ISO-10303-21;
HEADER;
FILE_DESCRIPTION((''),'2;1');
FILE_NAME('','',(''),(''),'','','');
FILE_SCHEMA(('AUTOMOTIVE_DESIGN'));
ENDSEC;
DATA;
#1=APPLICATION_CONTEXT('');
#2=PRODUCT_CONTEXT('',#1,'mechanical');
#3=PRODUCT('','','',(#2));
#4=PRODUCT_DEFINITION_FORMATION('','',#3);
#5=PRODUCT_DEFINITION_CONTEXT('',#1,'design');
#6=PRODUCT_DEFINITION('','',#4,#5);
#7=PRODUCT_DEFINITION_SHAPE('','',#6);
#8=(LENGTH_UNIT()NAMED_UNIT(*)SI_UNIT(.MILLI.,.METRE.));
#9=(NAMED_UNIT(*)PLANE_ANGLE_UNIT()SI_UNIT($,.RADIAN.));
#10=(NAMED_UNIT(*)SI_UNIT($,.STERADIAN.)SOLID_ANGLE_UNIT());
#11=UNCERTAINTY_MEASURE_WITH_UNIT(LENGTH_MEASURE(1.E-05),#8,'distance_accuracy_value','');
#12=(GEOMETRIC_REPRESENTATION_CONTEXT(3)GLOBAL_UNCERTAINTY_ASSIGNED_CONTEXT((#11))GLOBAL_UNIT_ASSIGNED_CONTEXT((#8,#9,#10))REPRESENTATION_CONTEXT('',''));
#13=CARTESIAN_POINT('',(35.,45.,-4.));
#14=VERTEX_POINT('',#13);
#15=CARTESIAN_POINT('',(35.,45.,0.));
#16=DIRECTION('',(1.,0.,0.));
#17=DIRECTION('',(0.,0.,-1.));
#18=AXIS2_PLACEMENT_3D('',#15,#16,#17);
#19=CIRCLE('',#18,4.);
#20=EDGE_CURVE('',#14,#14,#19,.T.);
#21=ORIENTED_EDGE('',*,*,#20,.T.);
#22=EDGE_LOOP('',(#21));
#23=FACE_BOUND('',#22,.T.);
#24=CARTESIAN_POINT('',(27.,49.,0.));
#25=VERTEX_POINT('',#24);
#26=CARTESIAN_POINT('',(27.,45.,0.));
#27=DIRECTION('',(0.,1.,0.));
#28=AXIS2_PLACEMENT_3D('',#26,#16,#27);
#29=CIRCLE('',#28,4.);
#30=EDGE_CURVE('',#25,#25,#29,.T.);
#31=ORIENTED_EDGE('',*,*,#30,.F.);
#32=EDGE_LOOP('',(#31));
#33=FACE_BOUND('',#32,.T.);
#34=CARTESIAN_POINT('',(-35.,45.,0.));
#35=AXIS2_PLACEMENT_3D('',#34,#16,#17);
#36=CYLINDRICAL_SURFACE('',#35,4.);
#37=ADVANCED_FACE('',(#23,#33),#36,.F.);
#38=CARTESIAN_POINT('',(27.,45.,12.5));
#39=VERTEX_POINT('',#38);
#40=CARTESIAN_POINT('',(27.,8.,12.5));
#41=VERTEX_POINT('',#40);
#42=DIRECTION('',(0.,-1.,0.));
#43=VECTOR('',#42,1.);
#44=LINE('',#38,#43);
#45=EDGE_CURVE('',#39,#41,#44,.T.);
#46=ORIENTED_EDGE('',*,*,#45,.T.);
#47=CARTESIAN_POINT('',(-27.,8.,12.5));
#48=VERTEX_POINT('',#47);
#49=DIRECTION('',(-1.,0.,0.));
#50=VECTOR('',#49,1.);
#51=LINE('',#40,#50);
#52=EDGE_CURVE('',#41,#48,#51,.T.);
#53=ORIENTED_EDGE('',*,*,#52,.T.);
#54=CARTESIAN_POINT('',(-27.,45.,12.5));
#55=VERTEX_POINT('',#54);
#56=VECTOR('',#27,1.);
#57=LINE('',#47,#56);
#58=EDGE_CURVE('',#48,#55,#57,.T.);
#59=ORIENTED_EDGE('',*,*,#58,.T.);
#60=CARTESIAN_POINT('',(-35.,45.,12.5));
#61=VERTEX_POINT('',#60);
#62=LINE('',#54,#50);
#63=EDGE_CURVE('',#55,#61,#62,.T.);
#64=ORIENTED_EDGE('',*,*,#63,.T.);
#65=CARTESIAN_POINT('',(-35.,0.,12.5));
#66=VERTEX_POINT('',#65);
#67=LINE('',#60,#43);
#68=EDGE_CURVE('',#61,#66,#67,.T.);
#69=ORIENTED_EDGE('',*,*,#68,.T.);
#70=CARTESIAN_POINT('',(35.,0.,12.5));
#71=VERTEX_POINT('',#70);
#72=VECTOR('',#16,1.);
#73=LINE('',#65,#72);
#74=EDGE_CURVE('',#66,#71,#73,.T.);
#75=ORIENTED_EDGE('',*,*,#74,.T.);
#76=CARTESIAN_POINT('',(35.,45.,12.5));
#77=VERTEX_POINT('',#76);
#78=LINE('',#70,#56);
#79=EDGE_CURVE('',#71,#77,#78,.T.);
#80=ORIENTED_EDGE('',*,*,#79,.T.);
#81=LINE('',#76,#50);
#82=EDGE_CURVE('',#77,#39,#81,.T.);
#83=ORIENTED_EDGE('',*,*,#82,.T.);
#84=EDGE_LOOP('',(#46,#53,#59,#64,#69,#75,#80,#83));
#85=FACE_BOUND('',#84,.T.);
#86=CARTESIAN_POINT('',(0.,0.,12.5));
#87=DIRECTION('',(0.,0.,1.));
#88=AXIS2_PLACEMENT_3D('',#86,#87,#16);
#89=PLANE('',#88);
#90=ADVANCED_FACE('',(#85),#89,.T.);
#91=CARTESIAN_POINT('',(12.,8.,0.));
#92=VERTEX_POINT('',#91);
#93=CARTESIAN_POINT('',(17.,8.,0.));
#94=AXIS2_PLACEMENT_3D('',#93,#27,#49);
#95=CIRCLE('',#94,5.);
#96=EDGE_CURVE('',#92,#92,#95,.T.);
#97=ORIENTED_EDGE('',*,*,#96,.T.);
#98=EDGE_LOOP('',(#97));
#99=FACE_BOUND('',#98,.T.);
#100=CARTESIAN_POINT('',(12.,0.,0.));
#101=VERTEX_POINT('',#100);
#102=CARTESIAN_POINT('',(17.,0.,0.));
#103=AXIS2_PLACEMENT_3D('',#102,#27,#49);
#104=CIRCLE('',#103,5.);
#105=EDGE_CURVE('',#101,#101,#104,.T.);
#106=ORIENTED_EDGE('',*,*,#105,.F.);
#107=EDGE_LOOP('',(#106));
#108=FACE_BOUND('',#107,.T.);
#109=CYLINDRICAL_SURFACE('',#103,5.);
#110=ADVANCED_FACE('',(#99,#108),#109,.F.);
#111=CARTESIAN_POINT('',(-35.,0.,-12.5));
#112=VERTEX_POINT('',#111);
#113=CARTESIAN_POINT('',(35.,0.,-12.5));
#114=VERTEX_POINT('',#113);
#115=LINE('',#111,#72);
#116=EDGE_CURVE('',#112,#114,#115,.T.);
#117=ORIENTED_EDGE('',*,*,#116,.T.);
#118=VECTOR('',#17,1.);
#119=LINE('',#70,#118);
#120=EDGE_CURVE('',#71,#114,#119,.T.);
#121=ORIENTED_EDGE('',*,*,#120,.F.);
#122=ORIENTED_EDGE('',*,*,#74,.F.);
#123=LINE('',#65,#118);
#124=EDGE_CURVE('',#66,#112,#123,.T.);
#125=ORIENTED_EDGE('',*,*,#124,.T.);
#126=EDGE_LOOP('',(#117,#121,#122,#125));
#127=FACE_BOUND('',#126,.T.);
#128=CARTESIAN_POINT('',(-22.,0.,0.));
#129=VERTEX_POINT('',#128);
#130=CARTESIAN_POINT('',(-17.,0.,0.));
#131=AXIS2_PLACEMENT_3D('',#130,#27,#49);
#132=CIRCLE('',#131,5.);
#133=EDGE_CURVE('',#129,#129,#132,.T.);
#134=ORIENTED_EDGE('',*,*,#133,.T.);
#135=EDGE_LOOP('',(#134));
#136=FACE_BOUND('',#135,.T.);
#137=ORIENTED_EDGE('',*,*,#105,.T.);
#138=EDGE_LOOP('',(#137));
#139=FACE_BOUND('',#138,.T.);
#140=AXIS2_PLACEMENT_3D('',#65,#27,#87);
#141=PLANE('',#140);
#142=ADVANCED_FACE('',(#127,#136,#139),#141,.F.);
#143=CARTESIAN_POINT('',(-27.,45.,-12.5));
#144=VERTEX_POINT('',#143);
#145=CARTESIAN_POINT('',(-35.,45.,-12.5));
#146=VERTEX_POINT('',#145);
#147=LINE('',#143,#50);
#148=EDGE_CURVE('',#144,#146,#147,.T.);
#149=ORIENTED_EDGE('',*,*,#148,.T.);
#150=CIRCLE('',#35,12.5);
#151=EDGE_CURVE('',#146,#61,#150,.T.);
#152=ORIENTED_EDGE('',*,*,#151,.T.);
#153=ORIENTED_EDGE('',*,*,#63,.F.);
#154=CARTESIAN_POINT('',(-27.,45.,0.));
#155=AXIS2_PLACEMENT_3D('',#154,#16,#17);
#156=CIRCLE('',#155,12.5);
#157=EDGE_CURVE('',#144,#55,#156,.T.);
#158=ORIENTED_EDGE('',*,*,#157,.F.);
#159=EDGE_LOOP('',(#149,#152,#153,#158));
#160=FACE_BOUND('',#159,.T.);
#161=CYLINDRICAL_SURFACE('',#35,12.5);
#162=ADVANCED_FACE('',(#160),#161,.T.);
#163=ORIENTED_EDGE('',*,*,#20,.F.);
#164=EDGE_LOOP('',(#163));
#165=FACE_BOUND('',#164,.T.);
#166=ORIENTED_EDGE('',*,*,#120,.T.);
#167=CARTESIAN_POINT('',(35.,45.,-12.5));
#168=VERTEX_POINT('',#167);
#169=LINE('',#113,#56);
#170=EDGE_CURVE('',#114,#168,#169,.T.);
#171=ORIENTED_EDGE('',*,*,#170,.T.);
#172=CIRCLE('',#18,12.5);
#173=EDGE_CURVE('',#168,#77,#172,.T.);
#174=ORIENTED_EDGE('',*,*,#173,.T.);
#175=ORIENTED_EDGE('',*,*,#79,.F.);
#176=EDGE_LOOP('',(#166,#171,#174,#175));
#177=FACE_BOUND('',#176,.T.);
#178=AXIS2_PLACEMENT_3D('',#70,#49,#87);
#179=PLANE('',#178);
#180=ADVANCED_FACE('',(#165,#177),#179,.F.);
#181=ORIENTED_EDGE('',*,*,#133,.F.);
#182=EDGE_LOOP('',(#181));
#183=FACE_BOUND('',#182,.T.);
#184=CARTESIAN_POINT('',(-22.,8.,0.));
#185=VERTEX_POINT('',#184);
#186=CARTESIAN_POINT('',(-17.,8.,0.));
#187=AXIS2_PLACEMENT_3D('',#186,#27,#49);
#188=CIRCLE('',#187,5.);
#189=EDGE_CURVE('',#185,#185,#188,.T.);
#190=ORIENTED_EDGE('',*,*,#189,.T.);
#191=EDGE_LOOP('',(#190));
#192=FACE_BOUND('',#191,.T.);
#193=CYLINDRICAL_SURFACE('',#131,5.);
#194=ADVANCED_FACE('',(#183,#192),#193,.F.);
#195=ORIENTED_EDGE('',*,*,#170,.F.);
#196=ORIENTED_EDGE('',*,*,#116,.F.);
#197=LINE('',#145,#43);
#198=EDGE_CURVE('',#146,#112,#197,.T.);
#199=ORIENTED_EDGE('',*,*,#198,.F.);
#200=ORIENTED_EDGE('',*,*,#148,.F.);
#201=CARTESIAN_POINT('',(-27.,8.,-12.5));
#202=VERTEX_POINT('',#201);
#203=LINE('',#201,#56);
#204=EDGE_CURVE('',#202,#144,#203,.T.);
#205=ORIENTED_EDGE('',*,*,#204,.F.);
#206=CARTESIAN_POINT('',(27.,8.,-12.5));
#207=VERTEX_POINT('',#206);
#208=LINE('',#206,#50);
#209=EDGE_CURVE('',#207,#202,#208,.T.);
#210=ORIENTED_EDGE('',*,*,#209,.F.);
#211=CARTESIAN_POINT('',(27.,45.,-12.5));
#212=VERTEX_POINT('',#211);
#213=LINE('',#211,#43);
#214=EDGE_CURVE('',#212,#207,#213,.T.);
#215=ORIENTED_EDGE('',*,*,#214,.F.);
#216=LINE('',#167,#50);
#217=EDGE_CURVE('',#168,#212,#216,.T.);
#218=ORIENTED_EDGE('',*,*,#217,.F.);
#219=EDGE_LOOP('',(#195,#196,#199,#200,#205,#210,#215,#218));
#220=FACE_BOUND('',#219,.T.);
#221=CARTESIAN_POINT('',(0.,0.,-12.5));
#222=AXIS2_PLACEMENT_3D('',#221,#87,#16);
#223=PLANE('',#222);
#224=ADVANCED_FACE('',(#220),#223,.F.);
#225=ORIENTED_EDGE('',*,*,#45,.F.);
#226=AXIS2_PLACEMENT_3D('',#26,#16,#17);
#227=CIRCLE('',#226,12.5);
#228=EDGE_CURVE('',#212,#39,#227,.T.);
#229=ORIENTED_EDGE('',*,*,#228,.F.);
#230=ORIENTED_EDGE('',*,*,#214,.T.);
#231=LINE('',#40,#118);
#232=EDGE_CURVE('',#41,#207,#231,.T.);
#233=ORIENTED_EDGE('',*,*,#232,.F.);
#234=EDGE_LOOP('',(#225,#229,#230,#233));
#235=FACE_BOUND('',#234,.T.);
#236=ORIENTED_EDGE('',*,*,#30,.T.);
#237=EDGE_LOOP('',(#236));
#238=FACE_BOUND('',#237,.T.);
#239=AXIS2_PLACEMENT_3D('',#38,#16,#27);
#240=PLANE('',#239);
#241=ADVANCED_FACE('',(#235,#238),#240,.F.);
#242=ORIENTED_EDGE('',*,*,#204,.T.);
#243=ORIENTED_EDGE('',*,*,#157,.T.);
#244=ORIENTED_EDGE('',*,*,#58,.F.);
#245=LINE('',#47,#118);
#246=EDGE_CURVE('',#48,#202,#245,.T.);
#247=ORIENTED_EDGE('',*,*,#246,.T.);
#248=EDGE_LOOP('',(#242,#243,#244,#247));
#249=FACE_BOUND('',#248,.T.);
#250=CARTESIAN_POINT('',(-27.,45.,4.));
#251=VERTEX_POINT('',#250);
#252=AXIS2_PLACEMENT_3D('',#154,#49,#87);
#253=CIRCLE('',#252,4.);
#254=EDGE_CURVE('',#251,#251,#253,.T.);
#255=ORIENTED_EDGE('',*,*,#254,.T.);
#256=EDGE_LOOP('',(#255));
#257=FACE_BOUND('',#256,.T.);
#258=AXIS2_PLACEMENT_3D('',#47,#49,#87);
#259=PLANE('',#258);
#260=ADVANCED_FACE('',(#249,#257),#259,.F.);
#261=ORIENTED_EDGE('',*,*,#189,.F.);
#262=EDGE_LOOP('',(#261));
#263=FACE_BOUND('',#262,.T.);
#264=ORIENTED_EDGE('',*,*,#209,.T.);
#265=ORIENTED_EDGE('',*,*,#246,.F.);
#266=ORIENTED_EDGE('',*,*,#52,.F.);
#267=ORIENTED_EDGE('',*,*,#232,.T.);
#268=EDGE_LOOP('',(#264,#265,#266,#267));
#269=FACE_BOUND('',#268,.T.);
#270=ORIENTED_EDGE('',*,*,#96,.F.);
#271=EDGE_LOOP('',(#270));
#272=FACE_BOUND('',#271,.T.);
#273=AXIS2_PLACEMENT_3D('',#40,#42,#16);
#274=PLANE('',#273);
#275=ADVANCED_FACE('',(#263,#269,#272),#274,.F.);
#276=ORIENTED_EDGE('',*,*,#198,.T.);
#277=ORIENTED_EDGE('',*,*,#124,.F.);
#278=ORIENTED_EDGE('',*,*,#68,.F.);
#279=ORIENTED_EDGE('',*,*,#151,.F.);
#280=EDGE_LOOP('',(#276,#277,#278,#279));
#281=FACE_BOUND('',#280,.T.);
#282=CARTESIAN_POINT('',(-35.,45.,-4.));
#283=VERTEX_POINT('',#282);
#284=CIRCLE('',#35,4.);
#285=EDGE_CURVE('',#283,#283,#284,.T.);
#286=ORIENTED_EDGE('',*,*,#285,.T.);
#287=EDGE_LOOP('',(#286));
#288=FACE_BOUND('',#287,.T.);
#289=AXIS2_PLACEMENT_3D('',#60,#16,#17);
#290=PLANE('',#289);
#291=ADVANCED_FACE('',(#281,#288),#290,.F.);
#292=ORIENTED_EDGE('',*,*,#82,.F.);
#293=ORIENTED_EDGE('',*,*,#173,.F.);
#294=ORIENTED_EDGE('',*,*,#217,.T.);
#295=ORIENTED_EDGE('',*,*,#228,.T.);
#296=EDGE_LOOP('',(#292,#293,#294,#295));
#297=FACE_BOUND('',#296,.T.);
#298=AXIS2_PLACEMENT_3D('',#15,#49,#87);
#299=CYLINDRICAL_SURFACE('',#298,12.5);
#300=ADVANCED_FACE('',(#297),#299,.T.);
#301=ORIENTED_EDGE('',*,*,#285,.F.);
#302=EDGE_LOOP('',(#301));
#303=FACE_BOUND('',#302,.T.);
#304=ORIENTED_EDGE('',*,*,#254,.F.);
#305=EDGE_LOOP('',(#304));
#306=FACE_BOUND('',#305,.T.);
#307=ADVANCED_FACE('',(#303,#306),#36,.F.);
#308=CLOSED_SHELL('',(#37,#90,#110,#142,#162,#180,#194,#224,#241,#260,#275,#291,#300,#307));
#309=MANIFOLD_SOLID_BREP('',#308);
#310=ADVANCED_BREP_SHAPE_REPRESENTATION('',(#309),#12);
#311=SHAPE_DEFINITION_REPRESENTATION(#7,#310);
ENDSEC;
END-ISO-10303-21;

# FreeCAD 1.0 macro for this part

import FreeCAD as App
import Part
import Sketcher
Q = App.Units.Quantity

doc = App.newDocument("Part")
body = doc.addObject("PartDesign::Body", "Body")

# Sketch on XY plane
sketch1 = body.newObject("Sketcher::SketchObject", "Sketch")
sketch1.AttachmentSupport = (doc.getObject("XY_Plane"), [""])
sketch1.MapMode = "FlatFace"
sketch1.addGeometry(Part.LineSegment(App.Vector(-35, 0, 0), App.Vector(35, 0, 0)), False)
sketch1.addGeometry(Part.LineSegment(App.Vector(35, 0, 0), App.Vector(35, 45, 0)), False)
sketch1.addGeometry(Part.LineSegment(App.Vector(35, 45, 0), App.Vector(27, 45, 0)), False)
sketch1.addGeometry(Part.LineSegment(App.Vector(27, 45, 0), App.Vector(27, 8, 0)), False)
sketch1.addGeometry(Part.LineSegment(App.Vector(27, 8, 0), App.Vector(-27, 8, 0)), False)
sketch1.addGeometry(Part.LineSegment(App.Vector(-27, 8, 0), App.Vector(-27, 45, 0)), False)
sketch1.addGeometry(Part.LineSegment(App.Vector(-27, 45, 0), App.Vector(-35, 45, 0)), False)
sketch1.addGeometry(Part.LineSegment(App.Vector(-35, 45, 0), App.Vector(-35, 0, 0)), False)
sketch1.addConstraint(Sketcher.Constraint("Coincident", 0, 2, 1, 1))
sketch1.addConstraint(Sketcher.Constraint("Coincident", 1, 2, 2, 1))
sketch1.addConstraint(Sketcher.Constraint("Coincident", 2, 2, 3, 1))
sketch1.addConstraint(Sketcher.Constraint("Coincident", 3, 2, 4, 1))
sketch1.addConstraint(Sketcher.Constraint("Coincident", 4, 2, 5, 1))
sketch1.addConstraint(Sketcher.Constraint("Coincident", 5, 2, 6, 1))
sketch1.addConstraint(Sketcher.Constraint("Coincident", 6, 2, 7, 1))
sketch1.addConstraint(Sketcher.Constraint("Coincident", 7, 2, 0, 1))
sketch1.addConstraint(Sketcher.Constraint("Horizontal", 0))
sketch1.addConstraint(Sketcher.Constraint("Vertical", 1))
sketch1.addConstraint(Sketcher.Constraint("Horizontal", 2))
sketch1.addConstraint(Sketcher.Constraint("Vertical", 3))
sketch1.addConstraint(Sketcher.Constraint("Horizontal", 4))
sketch1.addConstraint(Sketcher.Constraint("Vertical", 5))
sketch1.addConstraint(Sketcher.Constraint("Horizontal", 6))
sketch1.addConstraint(Sketcher.Constraint("Vertical", 7))
sketch1.addConstraint(Sketcher.Constraint("Symmetric", 0, 2, 7, 2, -1, 1))
sketch1.addConstraint(Sketcher.Constraint("Symmetric", 2, 2, 5, 2, -2))
sketch1.addConstraint(Sketcher.Constraint("DistanceX", 0, 1, 0, 2, Q("70 mm")))
sketch1.addConstraint(Sketcher.Constraint("DistanceX", 2, 2, 2, 1, Q("8 mm")))
sketch1.addConstraint(Sketcher.Constraint("DistanceY", 1, 1, 1, 2, Q("45 mm")))
sketch1.addConstraint(Sketcher.Constraint("DistanceY", 3, 2, 3, 1, Q("37 mm")))
pad1 = body.newObject("PartDesign::Pad", "Pad")
pad1.Profile = sketch1
pad1.Length = 25
pad1.Midplane = True

# Sketch on YZ plane
sketch2 = body.newObject("Sketcher::SketchObject", "Sketch001")
sketch2.AttachmentSupport = (doc.getObject("YZ_Plane"), [""])
sketch2.MapMode = "FlatFace"
sketch2.AttachmentOffset = App.Placement(App.Vector(0, 0, 27), App.Rotation())
sketch2.addGeometry(Part.Circle(App.Vector(45, 0, 0), App.Vector(0, 0, 1), 12), False)
sketch2.addConstraint(Sketcher.Constraint("PointOnObject", 0, 3, -1))
sketch2.addConstraint(Sketcher.Constraint("Diameter", 0, Q("25 mm")))
sketch2.addConstraint(Sketcher.Constraint("DistanceX", -1, 1, 0, 3, Q("45 mm")))
pad2 = body.newObject("PartDesign::Pad", "Pad001")
pad2.Profile = sketch2
pad2.Length = 8
doc.recompute()

mirrored = body.newObject("PartDesign::Mirrored", "Mirrored")
mirrored.Originals = [pad2]
mirrored.MirrorPlane = (doc.getObject("YZ_Plane"), [""])
body.Tip = mirrored

# Sketch on YZ plane
sketch3 = body.newObject("Sketcher::SketchObject", "Sketch002")
sketch3.AttachmentSupport = (doc.getObject("YZ_Plane"), [""])
sketch3.MapMode = "FlatFace"
sketch3.addGeometry(Part.Circle(App.Vector(45, 0, 0), App.Vector(0, 0, 1), 4), False)
sketch3.addConstraint(Sketcher.Constraint("PointOnObject", 0, 3, -1))
sketch3.addConstraint(Sketcher.Constraint("Diameter", 0, Q("8 mm")))
sketch3.addConstraint(Sketcher.Constraint("DistanceX", -1, 1, 0, 3, Q("45 mm")))
pocket1 = body.newObject("PartDesign::Pocket", "Pocket")
pocket1.Profile = sketch3
pocket1.Type = "ThroughAll"
pocket1.Midplane = True

# Sketch on XZ plane
sketch4 = body.newObject("Sketcher::SketchObject", "Sketch003")
sketch4.AttachmentSupport = (doc.getObject("XZ_Plane"), [""])
sketch4.MapMode = "FlatFace"
sketch4.AttachmentOffset = App.Placement(App.Vector(0, 0, -8), App.Rotation())
sketch4.addGeometry(Part.Circle(App.Vector(-17, 0, 0), App.Vector(0, 0, 1), 5), False)
sketch4.addGeometry(Part.Circle(App.Vector(17, 0, 0), App.Vector(0, 0, 1), 5), False)
sketch4.addConstraint(Sketcher.Constraint("Equal", 0, 1))
sketch4.addConstraint(Sketcher.Constraint("Symmetric", 0, 3, 1, 3, -1, 1))
sketch4.addConstraint(Sketcher.Constraint("PointOnObject", 0, 3, -1))
sketch4.addConstraint(Sketcher.Constraint("Diameter", 0, Q("10 mm")))
sketch4.addConstraint(Sketcher.Constraint("DistanceX", 0, 3, -1, 1, Q("17 mm")))
pocket2 = body.newObject("PartDesign::Pocket", "Pocket001")
pocket2.Profile = sketch4
pocket2.Type = "ThroughAll"
pocket2.Reversed = True

doc.recompute()
